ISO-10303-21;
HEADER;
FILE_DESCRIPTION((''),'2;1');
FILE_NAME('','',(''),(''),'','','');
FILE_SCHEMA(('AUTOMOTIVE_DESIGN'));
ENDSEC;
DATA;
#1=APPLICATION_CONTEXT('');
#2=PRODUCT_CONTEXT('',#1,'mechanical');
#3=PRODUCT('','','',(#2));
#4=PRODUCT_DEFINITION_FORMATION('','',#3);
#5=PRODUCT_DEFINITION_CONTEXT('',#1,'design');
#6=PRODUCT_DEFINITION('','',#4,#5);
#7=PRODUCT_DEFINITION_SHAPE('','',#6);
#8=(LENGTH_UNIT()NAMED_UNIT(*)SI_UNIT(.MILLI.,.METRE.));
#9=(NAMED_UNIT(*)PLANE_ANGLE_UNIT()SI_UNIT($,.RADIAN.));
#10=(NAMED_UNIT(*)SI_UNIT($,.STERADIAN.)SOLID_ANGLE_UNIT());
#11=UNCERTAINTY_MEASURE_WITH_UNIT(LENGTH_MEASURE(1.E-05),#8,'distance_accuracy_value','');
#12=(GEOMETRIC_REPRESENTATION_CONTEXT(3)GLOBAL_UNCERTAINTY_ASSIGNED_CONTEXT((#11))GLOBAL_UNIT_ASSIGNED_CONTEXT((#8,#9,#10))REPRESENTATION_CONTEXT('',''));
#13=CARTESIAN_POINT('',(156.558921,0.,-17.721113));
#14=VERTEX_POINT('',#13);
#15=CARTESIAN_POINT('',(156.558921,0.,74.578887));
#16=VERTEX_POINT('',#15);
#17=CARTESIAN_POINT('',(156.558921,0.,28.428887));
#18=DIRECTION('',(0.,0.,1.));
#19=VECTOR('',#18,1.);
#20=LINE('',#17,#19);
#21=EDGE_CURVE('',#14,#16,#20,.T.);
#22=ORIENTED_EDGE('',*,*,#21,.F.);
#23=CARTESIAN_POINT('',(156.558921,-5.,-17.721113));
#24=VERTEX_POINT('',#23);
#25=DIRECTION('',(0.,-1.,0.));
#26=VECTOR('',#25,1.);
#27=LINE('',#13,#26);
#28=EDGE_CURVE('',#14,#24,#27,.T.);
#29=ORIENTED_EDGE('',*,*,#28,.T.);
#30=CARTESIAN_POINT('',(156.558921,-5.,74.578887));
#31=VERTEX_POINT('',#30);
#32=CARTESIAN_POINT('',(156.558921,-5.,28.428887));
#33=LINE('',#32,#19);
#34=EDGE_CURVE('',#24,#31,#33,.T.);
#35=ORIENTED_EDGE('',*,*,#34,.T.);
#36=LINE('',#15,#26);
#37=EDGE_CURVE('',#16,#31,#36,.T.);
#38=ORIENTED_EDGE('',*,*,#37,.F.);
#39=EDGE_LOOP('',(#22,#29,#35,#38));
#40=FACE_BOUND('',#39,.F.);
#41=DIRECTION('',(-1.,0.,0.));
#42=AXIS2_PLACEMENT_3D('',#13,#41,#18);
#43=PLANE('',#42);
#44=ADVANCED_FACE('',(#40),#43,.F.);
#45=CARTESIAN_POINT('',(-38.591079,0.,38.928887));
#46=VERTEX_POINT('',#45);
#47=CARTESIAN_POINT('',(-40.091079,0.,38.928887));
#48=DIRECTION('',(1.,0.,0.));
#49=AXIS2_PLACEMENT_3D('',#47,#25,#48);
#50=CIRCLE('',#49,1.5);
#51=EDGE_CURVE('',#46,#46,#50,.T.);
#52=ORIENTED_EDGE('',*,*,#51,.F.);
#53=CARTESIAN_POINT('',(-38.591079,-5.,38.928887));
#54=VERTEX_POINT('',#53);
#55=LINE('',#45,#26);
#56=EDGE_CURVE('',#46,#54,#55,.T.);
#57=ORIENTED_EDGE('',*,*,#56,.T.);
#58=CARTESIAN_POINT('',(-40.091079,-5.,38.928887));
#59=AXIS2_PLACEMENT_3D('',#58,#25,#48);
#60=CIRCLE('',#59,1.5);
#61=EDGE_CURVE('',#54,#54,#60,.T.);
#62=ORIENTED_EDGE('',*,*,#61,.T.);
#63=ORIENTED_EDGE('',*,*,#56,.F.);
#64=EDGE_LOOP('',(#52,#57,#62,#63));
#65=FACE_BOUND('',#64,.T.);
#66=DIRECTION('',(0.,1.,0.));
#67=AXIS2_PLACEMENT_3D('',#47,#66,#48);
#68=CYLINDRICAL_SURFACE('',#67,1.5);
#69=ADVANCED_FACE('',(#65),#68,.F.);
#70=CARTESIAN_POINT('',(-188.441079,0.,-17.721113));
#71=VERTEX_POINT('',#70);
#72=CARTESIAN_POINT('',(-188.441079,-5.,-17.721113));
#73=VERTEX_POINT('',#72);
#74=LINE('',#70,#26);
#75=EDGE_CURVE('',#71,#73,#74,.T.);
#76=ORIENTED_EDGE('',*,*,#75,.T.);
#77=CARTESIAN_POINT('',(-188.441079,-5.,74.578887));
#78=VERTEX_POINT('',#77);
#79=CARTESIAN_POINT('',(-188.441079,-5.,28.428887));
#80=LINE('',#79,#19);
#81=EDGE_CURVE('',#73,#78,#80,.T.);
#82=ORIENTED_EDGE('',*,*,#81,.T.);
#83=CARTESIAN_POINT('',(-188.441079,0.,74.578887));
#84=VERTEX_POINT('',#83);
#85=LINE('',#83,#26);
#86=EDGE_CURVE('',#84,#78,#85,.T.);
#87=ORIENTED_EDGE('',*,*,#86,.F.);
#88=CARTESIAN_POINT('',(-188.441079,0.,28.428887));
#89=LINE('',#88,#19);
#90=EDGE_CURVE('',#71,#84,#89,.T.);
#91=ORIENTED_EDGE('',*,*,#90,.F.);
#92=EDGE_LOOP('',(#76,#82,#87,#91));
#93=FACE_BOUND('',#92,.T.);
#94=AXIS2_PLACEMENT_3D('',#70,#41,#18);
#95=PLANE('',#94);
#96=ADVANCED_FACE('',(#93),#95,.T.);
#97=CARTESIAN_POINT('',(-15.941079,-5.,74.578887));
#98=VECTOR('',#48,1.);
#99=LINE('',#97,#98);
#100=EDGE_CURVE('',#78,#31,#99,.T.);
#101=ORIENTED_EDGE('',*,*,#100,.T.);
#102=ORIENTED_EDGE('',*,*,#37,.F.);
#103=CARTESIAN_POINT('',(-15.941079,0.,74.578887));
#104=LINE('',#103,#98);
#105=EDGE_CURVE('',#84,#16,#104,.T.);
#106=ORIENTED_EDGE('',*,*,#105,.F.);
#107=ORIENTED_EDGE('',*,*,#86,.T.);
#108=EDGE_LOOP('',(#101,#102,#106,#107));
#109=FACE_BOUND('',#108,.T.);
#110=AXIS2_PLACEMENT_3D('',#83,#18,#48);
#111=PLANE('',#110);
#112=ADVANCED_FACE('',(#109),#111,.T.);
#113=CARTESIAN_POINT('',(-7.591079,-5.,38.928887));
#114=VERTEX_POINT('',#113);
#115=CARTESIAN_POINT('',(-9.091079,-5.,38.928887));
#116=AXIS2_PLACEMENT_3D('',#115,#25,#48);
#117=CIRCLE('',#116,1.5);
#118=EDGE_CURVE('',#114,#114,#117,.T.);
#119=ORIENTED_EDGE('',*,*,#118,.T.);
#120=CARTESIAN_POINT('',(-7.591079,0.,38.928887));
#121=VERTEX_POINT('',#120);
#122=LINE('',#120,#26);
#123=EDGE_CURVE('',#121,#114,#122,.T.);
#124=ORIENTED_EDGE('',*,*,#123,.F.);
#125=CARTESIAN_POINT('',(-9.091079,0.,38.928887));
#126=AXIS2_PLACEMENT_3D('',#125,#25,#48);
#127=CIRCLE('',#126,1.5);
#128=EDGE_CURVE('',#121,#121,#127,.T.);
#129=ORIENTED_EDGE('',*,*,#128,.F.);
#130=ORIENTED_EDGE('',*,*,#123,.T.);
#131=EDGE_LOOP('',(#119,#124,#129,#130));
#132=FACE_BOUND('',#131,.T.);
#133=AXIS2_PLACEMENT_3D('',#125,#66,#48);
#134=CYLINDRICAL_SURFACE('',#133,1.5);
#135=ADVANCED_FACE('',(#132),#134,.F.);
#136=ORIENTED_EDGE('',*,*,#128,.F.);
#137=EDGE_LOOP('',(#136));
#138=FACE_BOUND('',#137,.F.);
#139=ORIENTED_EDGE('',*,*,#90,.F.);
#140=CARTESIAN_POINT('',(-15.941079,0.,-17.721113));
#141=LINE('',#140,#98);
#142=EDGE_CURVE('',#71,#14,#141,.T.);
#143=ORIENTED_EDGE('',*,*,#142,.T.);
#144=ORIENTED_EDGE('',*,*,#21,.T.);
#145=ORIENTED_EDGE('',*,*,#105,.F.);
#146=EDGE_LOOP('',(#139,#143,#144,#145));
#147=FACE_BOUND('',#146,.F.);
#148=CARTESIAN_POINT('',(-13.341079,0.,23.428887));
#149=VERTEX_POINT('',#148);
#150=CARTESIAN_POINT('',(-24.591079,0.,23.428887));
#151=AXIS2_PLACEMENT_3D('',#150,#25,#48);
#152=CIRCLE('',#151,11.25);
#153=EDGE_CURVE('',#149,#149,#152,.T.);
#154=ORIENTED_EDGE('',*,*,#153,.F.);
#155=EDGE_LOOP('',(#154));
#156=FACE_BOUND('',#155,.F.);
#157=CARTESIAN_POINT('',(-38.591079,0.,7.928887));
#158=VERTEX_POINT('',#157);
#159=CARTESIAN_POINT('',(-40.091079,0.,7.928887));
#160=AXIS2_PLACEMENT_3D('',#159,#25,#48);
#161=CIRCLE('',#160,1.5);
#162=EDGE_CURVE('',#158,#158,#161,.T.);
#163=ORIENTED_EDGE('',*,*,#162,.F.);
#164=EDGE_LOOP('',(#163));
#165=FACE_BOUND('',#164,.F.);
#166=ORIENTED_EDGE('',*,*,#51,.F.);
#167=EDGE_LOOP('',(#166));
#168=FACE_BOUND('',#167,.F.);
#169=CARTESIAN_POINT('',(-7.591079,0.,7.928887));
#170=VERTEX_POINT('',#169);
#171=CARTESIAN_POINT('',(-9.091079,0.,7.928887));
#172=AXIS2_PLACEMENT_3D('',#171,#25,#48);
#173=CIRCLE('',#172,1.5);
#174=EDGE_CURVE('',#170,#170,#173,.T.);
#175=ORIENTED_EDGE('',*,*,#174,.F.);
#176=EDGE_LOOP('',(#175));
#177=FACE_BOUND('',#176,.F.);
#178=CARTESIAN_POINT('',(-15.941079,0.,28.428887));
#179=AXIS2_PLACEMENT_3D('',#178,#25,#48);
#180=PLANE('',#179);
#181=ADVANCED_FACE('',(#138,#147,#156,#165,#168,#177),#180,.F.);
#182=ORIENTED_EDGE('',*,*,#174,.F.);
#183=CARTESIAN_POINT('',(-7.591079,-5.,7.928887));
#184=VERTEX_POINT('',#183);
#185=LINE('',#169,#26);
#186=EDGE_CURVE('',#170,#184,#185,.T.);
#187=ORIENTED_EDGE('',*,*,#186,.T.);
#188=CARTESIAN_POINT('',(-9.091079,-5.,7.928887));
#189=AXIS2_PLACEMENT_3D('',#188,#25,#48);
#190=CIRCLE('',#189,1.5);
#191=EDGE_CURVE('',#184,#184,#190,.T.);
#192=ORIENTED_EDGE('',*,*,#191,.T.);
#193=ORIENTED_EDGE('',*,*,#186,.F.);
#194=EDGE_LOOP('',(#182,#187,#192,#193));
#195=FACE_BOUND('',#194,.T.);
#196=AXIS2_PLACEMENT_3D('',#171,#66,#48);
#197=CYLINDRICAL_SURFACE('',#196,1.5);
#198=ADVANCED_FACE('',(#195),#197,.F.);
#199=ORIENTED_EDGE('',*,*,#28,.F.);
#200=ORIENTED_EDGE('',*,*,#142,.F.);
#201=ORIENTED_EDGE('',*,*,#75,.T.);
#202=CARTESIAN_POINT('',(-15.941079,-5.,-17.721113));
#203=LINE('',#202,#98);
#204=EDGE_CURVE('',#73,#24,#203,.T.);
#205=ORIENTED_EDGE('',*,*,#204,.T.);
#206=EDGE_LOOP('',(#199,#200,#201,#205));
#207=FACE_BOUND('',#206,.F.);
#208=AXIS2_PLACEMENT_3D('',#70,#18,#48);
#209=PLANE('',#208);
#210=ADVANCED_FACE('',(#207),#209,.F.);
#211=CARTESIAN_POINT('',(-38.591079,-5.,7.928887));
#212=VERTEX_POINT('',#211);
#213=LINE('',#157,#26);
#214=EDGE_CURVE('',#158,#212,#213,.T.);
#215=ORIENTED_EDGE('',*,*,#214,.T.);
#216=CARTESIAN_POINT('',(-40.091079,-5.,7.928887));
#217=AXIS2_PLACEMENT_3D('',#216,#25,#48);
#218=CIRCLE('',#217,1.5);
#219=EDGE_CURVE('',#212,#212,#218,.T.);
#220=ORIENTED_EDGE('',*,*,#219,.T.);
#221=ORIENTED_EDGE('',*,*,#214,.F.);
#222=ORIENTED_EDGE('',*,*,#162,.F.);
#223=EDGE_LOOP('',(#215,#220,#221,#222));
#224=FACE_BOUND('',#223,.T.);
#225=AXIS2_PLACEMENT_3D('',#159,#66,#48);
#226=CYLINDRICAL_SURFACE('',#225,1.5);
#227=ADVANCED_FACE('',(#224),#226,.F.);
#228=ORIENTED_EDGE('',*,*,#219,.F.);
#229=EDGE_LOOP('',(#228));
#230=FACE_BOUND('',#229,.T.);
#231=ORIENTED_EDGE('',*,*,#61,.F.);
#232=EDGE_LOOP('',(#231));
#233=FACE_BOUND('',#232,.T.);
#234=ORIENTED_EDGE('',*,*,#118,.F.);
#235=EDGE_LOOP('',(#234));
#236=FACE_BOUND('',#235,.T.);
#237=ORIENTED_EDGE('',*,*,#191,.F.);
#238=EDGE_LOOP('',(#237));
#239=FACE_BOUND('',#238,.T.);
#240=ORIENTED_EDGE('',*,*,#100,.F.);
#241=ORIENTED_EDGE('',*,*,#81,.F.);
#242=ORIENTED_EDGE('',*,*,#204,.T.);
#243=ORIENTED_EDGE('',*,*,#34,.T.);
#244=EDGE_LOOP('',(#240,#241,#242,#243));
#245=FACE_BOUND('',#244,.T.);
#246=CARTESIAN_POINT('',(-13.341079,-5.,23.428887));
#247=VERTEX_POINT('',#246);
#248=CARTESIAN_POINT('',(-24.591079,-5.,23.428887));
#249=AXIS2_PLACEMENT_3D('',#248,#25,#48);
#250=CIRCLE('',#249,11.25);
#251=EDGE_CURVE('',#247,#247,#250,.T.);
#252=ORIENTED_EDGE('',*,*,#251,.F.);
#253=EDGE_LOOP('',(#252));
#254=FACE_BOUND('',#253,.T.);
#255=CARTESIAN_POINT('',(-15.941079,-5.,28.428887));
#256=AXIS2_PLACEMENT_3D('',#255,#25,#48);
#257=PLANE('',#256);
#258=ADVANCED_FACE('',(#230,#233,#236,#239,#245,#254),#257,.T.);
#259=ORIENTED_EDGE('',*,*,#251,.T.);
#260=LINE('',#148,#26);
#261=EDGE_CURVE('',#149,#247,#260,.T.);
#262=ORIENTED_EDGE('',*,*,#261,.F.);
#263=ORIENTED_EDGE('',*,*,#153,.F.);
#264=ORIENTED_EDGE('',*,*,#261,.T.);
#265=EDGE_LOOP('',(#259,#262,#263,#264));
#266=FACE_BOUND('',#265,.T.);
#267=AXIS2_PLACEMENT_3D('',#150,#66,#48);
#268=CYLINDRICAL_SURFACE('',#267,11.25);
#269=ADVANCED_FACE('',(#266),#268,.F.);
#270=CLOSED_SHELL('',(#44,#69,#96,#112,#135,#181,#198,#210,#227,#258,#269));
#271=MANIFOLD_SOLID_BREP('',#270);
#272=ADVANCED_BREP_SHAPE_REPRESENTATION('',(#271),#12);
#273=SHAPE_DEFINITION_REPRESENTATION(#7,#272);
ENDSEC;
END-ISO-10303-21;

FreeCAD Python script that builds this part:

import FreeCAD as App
import Part
import Sketcher
from FreeCAD import Vector


def add_polygon(sketch, points):
    """Adds a closed chain of lines whose ends are joined by coincident constraints."""
    first, n = sketch.GeometryCount, len(points)
    for a, b in zip(points, points[1:] + points[:1]):
        sketch.addGeometry(Part.LineSegment(App.Vector(*a, 0), App.Vector(*b, 0)), False)
    for i in range(n):
        sketch.addConstraint(Sketcher.Constraint("Coincident", first + i, 2, first + (i + 1) % n, 1))

doc = App.newDocument("Part")
params = doc.addObject("Spreadsheet::Sheet", "Params")
for row, (alias, value) in enumerate([
    ("sketch1_diameter", "3 mm"),
    ("sketch1_diameter2", "22.5 mm"),
    ("sketch1_width", "345 mm"),
    ("sketch1_height", "92.3 mm"),
    ("pad1_length", "5 mm"),
], start=1):
    params.set(f"A{row}", alias)
    params.set(f"B{row}", "=" + value)
    params.setAlias(f"B{row}", alias)

body = doc.addObject("PartDesign::Body", "Body")

sketch1 = body.newObject("Sketcher::SketchObject", "Sketch")
sketch1.AttachmentSupport = (doc.getObject("XZ_Plane"), [""])
sketch1.MapMode = "FlatFace"
add_polygon(sketch1, [(-188.4, 74.6), (-188.4, -17.7), (156.6, -17.7), (156.6, 74.6)])
sketch1.addGeometry(Part.Circle(Vector(-40.1, 7.9, 0), Vector(0, 0, 1), 1.5), False)
sketch1.addGeometry(Part.Circle(Vector(-9.1, 7.9, 0), Vector(0, 0, 1), 1.5), False)
sketch1.addGeometry(Part.Circle(Vector(-40.1, 38.9, 0), Vector(0, 0, 1), 1.5), False)
sketch1.addGeometry(Part.Circle(Vector(-24.6, 23.4, 0), Vector(0, 0, 1), 11.2), False)
sketch1.addGeometry(Part.Circle(Vector(-9.1, 38.9, 0), Vector(0, 0, 1), 1.5), False)
sketch1.addConstraint([
    Sketcher.Constraint("Vertical", 0),
    Sketcher.Constraint("Horizontal", 1),
    Sketcher.Constraint("Vertical", 2),
    Sketcher.Constraint("Horizontal", 3),
    Sketcher.Constraint("Equal", 4, 5),
    Sketcher.Constraint("Equal", 5, 6),
    Sketcher.Constraint("Equal", 6, 8),
    Sketcher.Constraint("Horizontal", 4, 3, 5, 3),
    Sketcher.Constraint("Horizontal", 6, 3, 8, 3),
    Sketcher.Constraint("Vertical", 4, 3, 6, 3),
    Sketcher.Constraint("Vertical", 5, 3, 8, 3),
    Sketcher.Constraint("Diameter", 4, 3.0),
    Sketcher.Constraint("Diameter", 7, 22.5),
    Sketcher.Constraint("DistanceX", 1, 1, 1, 2, 345.0),
    Sketcher.Constraint("DistanceY", 0, 2, 0, 1, 92.3),
    Sketcher.Constraint("DistanceX", 4, 3, 5, 3, 31.0),
    Sketcher.Constraint("DistanceY", 4, 3, 6, 3, 31.0),
    Sketcher.Constraint("DistanceX", 4, 3, 7, 3, 15.5),
    Sketcher.Constraint("DistanceY", 4, 3, 7, 3, 15.5),
    Sketcher.Constraint("DistanceX", 0, 2, 4, 3, 148.35),
    Sketcher.Constraint("DistanceY", 0, 2, 4, 3, 25.65),
    Sketcher.Constraint("DistanceX", 4, 3, -1, 1, 40.091079),
    Sketcher.Constraint("DistanceY", -1, 1, 4, 3, 7.928887),
])
sketch1.setExpression("Constraints[15]", "Params.sketch1_diameter")
sketch1.setExpression("Constraints[16]", "Params.sketch1_diameter2")
sketch1.setExpression("Constraints[17]", "Params.sketch1_width")
sketch1.setExpression("Constraints[18]", "Params.sketch1_height")
pad1 = body.newObject("PartDesign::Pad", "Pad")
pad1.Profile = sketch1
pad1.setExpression("Length", "Params.pad1_length")

doc.recompute()
